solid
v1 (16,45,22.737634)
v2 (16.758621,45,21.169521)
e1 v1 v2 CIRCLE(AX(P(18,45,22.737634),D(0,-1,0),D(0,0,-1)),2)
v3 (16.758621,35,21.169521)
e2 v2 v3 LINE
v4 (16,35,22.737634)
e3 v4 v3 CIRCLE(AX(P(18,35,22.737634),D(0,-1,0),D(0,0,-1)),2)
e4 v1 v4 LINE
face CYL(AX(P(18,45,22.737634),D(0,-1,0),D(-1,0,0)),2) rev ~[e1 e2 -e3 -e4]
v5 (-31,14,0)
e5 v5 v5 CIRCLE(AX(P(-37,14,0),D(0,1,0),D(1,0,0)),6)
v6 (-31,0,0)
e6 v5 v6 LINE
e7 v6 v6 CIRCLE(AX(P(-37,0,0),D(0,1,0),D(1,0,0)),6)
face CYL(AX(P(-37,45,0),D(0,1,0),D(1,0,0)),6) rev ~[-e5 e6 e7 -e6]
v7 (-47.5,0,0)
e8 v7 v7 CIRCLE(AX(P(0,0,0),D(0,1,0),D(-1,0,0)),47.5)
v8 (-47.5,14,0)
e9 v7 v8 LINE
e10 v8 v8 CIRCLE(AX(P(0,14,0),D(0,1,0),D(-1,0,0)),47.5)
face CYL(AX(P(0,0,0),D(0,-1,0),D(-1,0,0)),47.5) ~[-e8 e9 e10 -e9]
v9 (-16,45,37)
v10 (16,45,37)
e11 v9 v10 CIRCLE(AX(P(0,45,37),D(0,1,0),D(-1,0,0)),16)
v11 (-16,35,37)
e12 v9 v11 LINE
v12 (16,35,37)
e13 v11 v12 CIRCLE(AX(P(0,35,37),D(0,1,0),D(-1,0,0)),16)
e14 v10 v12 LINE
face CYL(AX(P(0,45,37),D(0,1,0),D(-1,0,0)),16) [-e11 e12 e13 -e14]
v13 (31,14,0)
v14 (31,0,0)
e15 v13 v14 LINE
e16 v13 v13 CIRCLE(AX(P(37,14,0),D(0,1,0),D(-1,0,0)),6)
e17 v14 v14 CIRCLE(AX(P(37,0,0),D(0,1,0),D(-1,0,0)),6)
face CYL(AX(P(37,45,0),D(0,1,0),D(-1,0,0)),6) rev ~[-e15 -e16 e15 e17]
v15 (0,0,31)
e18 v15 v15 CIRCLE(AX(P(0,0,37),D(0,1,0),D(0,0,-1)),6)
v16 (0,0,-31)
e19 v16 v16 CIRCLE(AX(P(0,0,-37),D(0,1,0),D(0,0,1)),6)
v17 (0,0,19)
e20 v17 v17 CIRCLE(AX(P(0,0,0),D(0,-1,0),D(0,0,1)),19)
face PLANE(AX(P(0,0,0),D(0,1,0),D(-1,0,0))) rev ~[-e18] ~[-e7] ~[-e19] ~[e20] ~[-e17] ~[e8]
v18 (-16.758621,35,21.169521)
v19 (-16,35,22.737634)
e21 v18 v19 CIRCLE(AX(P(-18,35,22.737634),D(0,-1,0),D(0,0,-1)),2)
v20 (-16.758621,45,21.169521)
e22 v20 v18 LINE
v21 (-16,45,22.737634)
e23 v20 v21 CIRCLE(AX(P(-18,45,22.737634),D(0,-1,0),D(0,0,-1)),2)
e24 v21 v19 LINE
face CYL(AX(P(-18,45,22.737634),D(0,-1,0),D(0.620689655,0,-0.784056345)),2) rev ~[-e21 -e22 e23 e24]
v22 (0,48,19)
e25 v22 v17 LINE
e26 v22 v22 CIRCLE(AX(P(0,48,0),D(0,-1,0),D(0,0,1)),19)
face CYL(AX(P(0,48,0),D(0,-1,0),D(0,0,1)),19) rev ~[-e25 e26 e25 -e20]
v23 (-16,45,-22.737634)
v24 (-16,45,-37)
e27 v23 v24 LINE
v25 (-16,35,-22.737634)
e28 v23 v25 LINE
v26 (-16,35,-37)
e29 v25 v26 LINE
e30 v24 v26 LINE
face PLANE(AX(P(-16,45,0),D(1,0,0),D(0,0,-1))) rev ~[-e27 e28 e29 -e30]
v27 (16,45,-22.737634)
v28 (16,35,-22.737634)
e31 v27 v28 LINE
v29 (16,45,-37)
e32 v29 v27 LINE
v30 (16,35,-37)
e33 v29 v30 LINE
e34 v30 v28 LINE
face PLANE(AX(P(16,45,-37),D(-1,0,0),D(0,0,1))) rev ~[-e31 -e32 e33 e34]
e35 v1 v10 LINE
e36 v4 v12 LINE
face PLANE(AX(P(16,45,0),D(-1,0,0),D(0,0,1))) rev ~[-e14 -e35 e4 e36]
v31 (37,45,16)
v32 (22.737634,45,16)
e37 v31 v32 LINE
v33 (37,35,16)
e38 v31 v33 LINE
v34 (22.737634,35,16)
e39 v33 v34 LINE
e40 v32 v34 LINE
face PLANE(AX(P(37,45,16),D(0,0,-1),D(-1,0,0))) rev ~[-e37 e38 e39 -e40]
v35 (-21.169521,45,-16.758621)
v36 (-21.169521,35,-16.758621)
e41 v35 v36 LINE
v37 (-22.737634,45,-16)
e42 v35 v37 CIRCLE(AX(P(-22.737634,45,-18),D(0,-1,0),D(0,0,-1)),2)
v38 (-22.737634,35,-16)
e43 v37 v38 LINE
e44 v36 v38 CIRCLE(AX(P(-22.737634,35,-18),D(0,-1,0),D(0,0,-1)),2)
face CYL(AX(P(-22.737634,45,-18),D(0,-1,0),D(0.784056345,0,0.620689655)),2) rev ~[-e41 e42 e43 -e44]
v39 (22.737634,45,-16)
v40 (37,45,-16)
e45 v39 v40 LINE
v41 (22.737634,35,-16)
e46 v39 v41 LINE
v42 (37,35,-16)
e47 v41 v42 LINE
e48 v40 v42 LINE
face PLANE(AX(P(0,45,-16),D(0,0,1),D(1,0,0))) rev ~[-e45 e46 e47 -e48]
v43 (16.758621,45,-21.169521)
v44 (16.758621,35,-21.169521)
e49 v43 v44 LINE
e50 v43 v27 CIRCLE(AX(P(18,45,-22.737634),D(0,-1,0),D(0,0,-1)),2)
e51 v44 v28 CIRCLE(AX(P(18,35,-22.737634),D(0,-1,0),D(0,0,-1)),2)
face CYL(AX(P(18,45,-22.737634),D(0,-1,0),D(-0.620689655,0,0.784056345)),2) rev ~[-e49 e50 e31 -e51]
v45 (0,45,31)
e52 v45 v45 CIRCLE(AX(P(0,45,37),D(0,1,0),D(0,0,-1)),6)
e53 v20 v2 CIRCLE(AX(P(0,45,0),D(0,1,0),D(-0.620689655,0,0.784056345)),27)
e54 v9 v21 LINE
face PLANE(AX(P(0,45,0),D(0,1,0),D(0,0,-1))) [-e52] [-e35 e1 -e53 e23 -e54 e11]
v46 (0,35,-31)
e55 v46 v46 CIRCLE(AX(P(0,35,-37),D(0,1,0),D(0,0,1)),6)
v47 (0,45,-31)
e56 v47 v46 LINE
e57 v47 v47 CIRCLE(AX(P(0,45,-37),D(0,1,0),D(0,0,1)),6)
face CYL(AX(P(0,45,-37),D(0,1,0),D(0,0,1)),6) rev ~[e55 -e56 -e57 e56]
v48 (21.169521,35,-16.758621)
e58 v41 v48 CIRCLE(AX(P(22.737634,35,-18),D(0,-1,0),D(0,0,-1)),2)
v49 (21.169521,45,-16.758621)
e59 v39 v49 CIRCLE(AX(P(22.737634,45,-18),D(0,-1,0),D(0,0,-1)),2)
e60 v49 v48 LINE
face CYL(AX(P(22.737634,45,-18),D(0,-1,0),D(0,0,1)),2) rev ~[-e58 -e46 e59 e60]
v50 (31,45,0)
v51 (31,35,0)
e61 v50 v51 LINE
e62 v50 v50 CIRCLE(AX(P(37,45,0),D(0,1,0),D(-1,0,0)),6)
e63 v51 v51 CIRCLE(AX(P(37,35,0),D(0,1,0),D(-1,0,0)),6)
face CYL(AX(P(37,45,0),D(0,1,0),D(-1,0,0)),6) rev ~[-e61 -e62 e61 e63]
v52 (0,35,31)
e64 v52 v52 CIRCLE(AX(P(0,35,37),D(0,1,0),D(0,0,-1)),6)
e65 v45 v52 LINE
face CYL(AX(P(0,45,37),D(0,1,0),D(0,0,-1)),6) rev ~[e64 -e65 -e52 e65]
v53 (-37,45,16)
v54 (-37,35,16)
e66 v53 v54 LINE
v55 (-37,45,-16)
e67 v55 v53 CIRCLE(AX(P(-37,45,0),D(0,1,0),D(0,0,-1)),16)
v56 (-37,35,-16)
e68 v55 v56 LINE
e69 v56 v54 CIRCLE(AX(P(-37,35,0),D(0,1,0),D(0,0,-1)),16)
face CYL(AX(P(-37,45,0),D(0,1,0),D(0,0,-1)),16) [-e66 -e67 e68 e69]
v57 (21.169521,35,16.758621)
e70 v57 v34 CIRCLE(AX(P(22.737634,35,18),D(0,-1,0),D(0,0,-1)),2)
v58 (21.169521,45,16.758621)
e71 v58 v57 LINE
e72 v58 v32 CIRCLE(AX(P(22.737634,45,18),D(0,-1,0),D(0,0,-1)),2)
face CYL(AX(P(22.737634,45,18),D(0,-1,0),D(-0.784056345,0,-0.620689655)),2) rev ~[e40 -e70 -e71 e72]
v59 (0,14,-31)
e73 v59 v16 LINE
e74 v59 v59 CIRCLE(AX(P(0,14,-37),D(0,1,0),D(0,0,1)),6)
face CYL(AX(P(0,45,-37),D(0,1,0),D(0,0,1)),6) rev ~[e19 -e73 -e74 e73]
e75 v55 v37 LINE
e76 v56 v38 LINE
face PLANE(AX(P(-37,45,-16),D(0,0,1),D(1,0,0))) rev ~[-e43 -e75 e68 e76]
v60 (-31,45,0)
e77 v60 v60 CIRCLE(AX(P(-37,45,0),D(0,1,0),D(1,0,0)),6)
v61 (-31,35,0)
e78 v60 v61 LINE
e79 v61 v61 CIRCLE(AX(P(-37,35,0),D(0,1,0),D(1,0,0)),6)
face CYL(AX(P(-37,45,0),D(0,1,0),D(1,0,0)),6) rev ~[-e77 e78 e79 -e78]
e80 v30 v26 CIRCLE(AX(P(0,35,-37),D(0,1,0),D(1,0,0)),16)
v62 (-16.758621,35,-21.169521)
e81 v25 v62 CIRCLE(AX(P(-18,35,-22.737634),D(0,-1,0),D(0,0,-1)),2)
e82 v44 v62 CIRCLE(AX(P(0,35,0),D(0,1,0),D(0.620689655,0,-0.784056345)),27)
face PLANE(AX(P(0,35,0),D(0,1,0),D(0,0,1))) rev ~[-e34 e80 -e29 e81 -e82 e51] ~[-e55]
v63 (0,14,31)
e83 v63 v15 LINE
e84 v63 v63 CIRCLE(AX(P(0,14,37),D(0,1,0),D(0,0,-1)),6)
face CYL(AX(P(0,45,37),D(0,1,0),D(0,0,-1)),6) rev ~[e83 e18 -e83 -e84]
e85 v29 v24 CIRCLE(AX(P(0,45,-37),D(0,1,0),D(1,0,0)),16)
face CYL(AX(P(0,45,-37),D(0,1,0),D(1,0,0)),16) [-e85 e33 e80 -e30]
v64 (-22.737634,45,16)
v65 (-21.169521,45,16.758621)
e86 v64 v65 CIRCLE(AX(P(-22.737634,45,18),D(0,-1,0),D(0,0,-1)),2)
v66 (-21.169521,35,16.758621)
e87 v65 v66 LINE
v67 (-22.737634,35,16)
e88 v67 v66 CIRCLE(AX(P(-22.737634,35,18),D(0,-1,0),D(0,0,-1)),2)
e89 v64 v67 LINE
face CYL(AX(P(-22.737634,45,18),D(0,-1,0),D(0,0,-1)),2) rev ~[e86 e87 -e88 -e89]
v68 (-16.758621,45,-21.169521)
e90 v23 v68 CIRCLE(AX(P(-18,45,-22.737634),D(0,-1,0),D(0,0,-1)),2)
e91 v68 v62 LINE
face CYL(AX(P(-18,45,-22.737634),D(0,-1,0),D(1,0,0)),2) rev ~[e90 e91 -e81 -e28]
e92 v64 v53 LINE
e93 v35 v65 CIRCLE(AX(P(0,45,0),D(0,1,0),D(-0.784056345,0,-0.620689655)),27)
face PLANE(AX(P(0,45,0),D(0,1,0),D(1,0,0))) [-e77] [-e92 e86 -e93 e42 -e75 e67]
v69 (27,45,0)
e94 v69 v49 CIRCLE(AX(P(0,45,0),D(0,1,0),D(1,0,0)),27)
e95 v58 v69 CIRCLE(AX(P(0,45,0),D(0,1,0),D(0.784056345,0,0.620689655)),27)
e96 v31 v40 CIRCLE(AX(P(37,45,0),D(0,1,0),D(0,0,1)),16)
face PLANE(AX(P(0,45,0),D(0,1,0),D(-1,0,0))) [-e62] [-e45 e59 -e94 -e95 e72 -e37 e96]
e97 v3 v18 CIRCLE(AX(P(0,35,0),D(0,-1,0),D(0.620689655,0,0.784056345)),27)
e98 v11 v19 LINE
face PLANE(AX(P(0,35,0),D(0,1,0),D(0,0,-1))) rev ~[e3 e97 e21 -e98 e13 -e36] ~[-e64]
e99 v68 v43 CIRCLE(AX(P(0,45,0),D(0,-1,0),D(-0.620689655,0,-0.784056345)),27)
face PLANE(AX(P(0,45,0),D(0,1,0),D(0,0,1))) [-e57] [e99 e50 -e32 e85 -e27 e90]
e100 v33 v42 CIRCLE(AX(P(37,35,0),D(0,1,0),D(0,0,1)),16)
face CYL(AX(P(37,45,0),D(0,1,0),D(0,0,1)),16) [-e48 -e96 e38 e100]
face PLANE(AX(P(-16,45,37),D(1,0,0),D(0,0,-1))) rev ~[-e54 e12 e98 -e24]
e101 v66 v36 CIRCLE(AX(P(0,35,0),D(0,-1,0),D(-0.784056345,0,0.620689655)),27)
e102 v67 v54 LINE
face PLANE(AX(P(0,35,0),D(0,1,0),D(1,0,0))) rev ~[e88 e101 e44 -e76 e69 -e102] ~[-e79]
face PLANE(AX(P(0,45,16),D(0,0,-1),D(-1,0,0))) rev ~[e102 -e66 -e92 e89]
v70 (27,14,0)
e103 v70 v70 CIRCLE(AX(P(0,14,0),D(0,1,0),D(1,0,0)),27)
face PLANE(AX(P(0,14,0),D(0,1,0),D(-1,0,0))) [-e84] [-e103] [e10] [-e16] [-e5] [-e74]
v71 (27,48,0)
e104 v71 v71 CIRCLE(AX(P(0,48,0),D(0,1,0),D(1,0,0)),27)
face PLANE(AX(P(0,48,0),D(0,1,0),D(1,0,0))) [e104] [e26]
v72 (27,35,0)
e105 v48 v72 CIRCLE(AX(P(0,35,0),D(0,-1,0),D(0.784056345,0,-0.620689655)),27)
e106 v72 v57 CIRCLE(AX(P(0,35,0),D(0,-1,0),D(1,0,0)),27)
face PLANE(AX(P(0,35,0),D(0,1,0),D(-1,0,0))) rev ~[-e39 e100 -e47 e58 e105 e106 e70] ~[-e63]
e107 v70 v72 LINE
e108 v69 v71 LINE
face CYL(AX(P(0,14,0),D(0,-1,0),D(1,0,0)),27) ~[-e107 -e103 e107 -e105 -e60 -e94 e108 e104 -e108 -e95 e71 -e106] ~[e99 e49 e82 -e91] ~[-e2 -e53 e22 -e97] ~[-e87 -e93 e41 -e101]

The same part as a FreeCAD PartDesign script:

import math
import FreeCAD as App
import Part
import Sketcher
from FreeCAD import Vector


def edges_at(feature, points):
    """Names of the edges that pass closest to the given points."""
    edges = feature.Shape.Edges
    near = lambda p: min(range(len(edges)), key=lambda i: edges[i].distToShape(Part.Vertex(*p))[0])
    return sorted({f"Edge{near(p) + 1}" for p in points})

doc = App.newDocument("Part")
body = doc.addObject("PartDesign::Body", "Body")

# Sketch on XZ plane
sketch1 = doc.addObject("Sketcher::SketchObject", "Sketch")
body.addObject(sketch1)
sketch1.AttachmentSupport = (doc.XZ_Plane, [""])
sketch1.MapMode = "FlatFace"
sketch1.addGeometry(Part.Circle(Vector(0, 0, 0), Vector(0, 0, 1), 47.5), False)
sketch1.addConstraint([
    Sketcher.Constraint("Coincident", 0, 3, -1, 1),
    Sketcher.Constraint("Diameter", 0, 95.0),
])
pad1 = doc.addObject("PartDesign::Pad", "Pad")
body.addObject(pad1)
pad1.Profile = sketch1
pad1.Length = 14
pad1.Reversed = True

# Sketch on XZ plane
sketch2 = doc.addObject("Sketcher::SketchObject", "Sketch001")
body.addObject(sketch2)
sketch2.AttachmentSupport = (doc.XZ_Plane, [""])
sketch2.MapMode = "FlatFace"
sketch2.AttachmentOffset = App.Placement(Vector(0, 0, -14), App.Rotation())
sketch2.addGeometry(Part.Circle(Vector(0, 0, 0), Vector(0, 0, 1), 27), False)
sketch2.addConstraint([
    Sketcher.Constraint("Coincident", 0, 3, -1, 1),
    Sketcher.Constraint("Diameter", 0, 54.0),
])
pad2 = doc.addObject("PartDesign::Pad", "Pad001")
body.addObject(pad2)
pad2.Profile = sketch2
pad2.Length = 34
pad2.Reversed = True

# Sketch on XZ plane
sketch3 = doc.addObject("Sketcher::SketchObject", "Sketch002")
body.addObject(sketch3)
sketch3.AttachmentSupport = (doc.XZ_Plane, [""])
sketch3.MapMode = "FlatFace"
sketch3.AttachmentOffset = App.Placement(Vector(0, 0, -45), App.Rotation())
sketch3.addGeometry([
    Part.LineSegment(Vector(-37, 16, 0), Vector(0, 16, 0)),
    Part.ArcOfCircle(Part.Circle(Vector(0, 0, 0), Vector(0, 0, 1), 16), math.radians(-90), math.radians(90)),
    Part.LineSegment(Vector(0, -16, 0), Vector(-37, -16, 0)),
    Part.ArcOfCircle(Part.Circle(Vector(-37, 0, 0), Vector(0, 0, 1), 16), math.radians(90), math.radians(270)),
], False)
sketch3.addConstraint([
    Sketcher.Constraint("Tangent", 0, 2, 1, 2),
    Sketcher.Constraint("Tangent", 1, 1, 2, 1),
    Sketcher.Constraint("Tangent", 2, 2, 3, 2),
    Sketcher.Constraint("Tangent", 3, 1, 0, 1),
    Sketcher.Constraint("Horizontal", 0),
    Sketcher.Constraint("Horizontal", 2),
    Sketcher.Constraint("Coincident", 1, 3, -1, 1),
    Sketcher.Constraint("Radius", 1, 16.0),
    Sketcher.Constraint("DistanceX", 0, 1, 0, 2, 37.0),
])
pad3 = doc.addObject("PartDesign::Pad", "Pad002")
body.addObject(pad3)
pad3.Profile = sketch3
pad3.Length = 10

# Sketch on XZ plane
sketch4 = doc.addObject("Sketcher::SketchObject", "Sketch003")
body.addObject(sketch4)
sketch4.AttachmentSupport = (doc.XZ_Plane, [""])
sketch4.MapMode = "FlatFace"
sketch4.AttachmentOffset = App.Placement(Vector(0, 0, -45), App.Rotation())
sketch4.addGeometry(Part.Circle(Vector(-37, 0, 0), Vector(0, 0, 1), 6), False)
sketch4.addConstraint([
    Sketcher.Constraint("PointOnObject", 0, 3, -1),
    Sketcher.Constraint("Diameter", 0, 12.0),
    Sketcher.Constraint("DistanceX", 0, 3, -1, 1, 37.0),
])
pocket1 = doc.addObject("PartDesign::Pocket", "Pocket")
body.addObject(pocket1)
pocket1.Profile = sketch4
pocket1.Type = "ThroughAll"
pocket1.Reversed = True
doc.recompute()

fillet = doc.addObject("PartDesign::Fillet", "Fillet")
body.addObject(fillet)
fillet.Base = (pocket1, edges_at(pocket1, [(-21.749, 40, 16), (-21.749, 40, -16)]))
fillet.Radius = 2
doc.recompute()

polarpattern = doc.addObject("PartDesign::PolarPattern", "PolarPattern")
body.addObject(polarpattern)
polarpattern.Originals = [pad3, pocket1, fillet]
polarpattern.Axis = (doc.Y_Axis, [""])
polarpattern.Angle = 360
polarpattern.Occurrences = 4
body.Tip = polarpattern

# Sketch on XZ plane
sketch5 = doc.addObject("Sketcher::SketchObject", "Sketch004")
body.addObject(sketch5)
sketch5.AttachmentSupport = (doc.XZ_Plane, [""])
sketch5.MapMode = "FlatFace"
sketch5.AttachmentOffset = App.Placement(Vector(0, 0, -48), App.Rotation())
sketch5.addGeometry(Part.Circle(Vector(0, 0, 0), Vector(0, 0, 1), 19), False)
sketch5.addConstraint([
    Sketcher.Constraint("Coincident", 0, 3, -1, 1),
    Sketcher.Constraint("Diameter", 0, 38.0),
])
doc.recompute()
hole = doc.addObject("PartDesign::Hole", "Hole")
body.addObject(hole)
hole.Profile = sketch5
hole.ThreadType = "None"
hole.Diameter = 38
hole.DepthType = "ThroughAll"
hole.Reversed = True

doc.recompute()
